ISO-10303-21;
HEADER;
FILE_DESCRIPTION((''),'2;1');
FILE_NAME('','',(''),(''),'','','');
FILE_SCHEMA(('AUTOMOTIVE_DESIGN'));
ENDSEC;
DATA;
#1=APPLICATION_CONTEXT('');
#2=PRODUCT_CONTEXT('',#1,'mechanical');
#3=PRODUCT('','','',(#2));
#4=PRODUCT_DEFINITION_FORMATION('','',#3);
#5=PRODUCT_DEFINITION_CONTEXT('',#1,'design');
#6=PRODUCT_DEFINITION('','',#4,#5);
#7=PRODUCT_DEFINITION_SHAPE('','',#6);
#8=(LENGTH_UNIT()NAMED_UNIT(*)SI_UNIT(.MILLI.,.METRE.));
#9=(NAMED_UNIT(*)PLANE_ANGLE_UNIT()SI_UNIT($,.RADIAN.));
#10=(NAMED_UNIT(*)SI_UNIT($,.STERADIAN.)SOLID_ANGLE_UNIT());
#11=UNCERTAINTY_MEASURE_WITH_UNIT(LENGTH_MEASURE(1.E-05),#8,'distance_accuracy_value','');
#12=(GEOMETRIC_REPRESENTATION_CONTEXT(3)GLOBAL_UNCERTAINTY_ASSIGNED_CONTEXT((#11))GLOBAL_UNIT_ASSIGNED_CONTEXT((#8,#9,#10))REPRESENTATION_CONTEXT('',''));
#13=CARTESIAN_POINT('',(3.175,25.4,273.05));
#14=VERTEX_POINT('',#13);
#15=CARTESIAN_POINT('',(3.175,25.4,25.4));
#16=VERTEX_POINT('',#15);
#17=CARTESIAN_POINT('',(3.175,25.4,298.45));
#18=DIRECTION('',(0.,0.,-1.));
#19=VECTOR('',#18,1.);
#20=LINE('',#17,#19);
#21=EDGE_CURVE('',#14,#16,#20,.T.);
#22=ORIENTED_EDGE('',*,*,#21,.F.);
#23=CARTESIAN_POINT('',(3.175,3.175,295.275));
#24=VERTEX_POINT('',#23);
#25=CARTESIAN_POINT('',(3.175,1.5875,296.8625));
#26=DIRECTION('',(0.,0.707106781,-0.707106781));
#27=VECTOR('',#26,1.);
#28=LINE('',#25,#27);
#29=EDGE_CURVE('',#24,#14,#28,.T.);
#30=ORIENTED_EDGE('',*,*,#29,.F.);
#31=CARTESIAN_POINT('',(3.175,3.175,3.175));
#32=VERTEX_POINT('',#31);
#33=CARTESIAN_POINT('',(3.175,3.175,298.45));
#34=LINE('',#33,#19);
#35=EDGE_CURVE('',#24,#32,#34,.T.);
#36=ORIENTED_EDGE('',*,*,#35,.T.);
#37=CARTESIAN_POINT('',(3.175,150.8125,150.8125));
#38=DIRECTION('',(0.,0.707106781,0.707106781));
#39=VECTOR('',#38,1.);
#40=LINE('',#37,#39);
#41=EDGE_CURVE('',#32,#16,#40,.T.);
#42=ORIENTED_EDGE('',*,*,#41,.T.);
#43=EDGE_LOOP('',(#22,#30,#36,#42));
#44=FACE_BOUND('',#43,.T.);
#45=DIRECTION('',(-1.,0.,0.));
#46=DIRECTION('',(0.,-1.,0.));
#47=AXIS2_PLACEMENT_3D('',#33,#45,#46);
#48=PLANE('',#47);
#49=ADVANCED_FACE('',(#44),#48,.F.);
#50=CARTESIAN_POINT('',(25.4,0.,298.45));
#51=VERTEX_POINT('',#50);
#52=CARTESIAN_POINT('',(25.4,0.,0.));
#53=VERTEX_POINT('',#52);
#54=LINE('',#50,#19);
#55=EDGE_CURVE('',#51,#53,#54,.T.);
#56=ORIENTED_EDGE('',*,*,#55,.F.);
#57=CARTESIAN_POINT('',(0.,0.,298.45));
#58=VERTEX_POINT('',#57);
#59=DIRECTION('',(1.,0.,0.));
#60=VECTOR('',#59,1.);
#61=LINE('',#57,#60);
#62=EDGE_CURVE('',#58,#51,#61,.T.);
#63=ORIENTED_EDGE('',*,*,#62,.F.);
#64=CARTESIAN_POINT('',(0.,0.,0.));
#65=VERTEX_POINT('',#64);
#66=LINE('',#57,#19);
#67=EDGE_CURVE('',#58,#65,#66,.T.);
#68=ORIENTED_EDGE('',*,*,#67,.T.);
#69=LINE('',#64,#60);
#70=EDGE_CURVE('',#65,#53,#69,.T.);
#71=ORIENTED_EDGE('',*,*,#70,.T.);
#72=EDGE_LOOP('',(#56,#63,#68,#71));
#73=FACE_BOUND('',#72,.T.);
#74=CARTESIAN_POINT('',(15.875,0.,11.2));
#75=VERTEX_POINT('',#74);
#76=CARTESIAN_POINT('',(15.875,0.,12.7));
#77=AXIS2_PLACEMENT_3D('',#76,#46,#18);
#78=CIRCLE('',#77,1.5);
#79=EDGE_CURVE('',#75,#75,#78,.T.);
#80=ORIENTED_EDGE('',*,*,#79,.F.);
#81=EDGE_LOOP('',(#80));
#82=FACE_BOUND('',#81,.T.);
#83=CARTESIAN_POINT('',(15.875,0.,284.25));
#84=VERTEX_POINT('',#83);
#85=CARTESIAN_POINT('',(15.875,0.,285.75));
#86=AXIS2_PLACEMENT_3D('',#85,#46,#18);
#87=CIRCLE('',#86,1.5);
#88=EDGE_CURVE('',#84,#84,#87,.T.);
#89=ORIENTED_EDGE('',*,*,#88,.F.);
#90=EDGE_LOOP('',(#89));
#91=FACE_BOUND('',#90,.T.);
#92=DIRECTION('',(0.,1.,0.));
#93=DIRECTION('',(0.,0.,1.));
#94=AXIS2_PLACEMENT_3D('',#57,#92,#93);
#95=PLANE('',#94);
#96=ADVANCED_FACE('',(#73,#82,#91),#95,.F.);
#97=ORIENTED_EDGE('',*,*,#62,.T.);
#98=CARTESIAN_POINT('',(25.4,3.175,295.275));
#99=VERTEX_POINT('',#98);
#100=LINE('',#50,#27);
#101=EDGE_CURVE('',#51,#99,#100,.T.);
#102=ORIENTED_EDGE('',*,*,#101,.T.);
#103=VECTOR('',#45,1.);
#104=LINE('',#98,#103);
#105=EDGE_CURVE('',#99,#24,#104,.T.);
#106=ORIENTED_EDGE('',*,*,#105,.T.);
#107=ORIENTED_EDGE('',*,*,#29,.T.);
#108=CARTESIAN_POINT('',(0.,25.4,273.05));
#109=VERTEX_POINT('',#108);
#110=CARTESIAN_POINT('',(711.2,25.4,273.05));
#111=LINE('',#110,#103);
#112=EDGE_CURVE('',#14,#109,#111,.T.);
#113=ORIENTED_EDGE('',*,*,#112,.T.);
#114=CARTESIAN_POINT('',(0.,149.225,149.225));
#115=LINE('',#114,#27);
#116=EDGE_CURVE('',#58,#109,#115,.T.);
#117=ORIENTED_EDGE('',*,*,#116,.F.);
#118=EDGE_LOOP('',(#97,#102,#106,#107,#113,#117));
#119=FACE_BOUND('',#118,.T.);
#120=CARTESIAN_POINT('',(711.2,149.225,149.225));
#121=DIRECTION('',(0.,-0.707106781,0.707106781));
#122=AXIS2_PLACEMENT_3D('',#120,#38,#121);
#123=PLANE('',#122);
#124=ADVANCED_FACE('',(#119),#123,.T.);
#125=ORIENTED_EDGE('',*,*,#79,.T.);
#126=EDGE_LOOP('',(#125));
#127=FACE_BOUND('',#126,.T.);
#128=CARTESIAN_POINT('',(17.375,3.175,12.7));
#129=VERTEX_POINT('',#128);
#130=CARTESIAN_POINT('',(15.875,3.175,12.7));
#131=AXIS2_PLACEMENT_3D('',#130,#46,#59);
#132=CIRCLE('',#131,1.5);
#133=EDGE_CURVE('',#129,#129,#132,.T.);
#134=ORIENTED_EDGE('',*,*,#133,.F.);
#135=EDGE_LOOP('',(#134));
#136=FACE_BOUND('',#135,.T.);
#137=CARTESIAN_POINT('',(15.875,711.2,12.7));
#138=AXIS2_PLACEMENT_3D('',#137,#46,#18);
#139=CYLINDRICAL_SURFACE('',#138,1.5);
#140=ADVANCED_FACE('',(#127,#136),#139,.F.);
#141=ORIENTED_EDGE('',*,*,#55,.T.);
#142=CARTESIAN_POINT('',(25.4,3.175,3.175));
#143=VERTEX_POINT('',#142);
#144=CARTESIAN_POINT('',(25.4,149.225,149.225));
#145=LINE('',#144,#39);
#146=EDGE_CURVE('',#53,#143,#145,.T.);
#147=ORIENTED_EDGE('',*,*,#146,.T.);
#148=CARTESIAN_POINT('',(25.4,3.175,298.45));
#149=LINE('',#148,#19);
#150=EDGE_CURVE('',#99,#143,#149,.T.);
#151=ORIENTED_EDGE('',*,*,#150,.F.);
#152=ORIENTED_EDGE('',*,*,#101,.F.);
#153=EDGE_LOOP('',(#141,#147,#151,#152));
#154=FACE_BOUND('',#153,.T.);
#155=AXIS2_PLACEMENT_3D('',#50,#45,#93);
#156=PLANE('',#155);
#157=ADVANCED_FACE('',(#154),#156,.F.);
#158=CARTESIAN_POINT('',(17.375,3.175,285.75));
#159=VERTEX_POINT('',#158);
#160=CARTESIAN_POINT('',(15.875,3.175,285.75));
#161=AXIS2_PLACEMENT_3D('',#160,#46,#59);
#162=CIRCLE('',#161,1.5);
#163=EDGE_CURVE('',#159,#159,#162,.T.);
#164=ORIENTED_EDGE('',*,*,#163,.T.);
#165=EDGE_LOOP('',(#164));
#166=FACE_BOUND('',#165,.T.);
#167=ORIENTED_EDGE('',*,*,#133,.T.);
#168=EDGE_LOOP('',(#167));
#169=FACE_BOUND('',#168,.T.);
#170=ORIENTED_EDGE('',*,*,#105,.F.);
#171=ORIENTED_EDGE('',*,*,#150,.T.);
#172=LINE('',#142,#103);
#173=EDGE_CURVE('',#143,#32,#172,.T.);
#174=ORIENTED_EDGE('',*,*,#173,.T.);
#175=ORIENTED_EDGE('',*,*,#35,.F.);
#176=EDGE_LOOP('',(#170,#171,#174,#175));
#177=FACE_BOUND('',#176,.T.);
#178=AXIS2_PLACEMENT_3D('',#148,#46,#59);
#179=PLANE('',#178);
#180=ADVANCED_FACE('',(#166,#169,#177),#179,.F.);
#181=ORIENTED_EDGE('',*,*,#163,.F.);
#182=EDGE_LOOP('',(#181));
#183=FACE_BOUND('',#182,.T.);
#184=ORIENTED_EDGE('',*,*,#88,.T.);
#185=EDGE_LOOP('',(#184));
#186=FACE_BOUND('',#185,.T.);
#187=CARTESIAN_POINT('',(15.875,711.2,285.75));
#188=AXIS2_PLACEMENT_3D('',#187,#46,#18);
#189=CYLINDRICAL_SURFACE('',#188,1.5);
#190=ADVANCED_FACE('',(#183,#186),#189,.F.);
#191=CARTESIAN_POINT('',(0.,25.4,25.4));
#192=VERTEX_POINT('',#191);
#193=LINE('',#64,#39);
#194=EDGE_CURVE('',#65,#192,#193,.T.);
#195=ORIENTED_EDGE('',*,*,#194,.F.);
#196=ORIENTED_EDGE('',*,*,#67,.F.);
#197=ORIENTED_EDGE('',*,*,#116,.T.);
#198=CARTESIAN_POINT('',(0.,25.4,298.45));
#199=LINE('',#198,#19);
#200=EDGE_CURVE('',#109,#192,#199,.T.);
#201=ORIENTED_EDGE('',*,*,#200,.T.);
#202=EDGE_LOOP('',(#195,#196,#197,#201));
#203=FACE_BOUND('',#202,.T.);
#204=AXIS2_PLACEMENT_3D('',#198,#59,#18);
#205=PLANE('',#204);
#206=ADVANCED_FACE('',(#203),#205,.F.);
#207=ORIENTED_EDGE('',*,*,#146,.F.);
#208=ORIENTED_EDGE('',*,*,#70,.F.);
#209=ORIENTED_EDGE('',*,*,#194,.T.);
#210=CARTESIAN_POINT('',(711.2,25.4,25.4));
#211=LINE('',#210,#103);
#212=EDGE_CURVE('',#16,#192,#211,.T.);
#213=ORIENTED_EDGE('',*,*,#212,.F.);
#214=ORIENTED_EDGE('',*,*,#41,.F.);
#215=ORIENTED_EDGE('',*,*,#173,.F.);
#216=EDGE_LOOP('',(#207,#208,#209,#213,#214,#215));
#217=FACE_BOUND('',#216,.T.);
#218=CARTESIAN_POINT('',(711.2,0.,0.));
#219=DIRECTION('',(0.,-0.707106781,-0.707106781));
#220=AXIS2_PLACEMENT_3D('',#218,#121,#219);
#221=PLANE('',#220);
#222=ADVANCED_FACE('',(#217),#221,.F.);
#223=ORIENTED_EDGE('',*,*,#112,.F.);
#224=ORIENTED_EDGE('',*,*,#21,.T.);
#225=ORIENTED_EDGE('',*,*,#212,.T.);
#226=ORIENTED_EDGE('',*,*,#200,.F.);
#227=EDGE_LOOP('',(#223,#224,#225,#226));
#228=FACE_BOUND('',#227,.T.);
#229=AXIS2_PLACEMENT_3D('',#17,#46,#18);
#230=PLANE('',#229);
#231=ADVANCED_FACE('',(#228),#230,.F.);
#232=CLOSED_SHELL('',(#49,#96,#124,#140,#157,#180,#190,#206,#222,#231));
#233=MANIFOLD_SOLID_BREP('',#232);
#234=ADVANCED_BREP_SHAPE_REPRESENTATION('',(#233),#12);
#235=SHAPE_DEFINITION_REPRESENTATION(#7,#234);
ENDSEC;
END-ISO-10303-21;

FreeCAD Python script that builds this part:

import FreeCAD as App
import Part
import Sketcher
from FreeCAD import Vector
Q = App.Units.Quantity

doc = App.newDocument("Part")
params = doc.addObject("Spreadsheet::Sheet", "Params")
for row, (alias, value) in enumerate([
    ("sketch1_width", "1 in"),
    ("sketch1_width2", "0.875 in"),
    ("pad1_length", "11.75 in"),
    ("sketch2_width", "1 in"),
    ("pocket1_length", "28 in"),
    ("pocket2_length", "28 in"),
], start=1):
    params.set(f"A{row}", alias)
    params.set(f"B{row}", "=" + value)
    params.setAlias(f"B{row}", alias)

body = doc.addObject("PartDesign::Body", "Body")

sketch1 = doc.addObject("Sketcher::SketchObject", "Sketch")
body.addObject(sketch1)
sketch1.AttachmentSupport = (doc.XY_Plane, [""])
sketch1.MapMode = "FlatFace"
sketch1.addGeometry(Part.LineSegment(Vector(0, 25.4, 0), Vector(0, 0, 0)), False)
sketch1.addGeometry(Part.LineSegment(Vector(0, 0, 0), Vector(25.4, 0, 0)), False)
sketch1.addGeometry(Part.LineSegment(Vector(25.4, 0, 0), Vector(25.4, 3.2, 0)), False)
sketch1.addGeometry(Part.LineSegment(Vector(25.4, 3.2, 0), Vector(3.2, 3.2, 0)), False)
sketch1.addGeometry(Part.LineSegment(Vector(3.2, 3.2, 0), Vector(3.2, 25.4, 0)), False)
sketch1.addGeometry(Part.LineSegment(Vector(3.2, 25.4, 0), Vector(0, 25.4, 0)), False)
sketch1.addConstraint(Sketcher.Constraint("Coincident", 0, 2, 1, 1))
sketch1.addConstraint(Sketcher.Constraint("Coincident", 1, 2, 2, 1))
sketch1.addConstraint(Sketcher.Constraint("Coincident", 2, 2, 3, 1))
sketch1.addConstraint(Sketcher.Constraint("Coincident", 3, 2, 4, 1))
sketch1.addConstraint(Sketcher.Constraint("Coincident", 4, 2, 5, 1))
sketch1.addConstraint(Sketcher.Constraint("Coincident", 5, 2, 0, 1))
sketch1.addConstraint(Sketcher.Constraint("Vertical", 0))
sketch1.addConstraint(Sketcher.Constraint("Horizontal", 1))
sketch1.addConstraint(Sketcher.Constraint("Vertical", 2))
sketch1.addConstraint(Sketcher.Constraint("Horizontal", 3))
sketch1.addConstraint(Sketcher.Constraint("Vertical", 4))
sketch1.addConstraint(Sketcher.Constraint("Horizontal", 5))
sketch1.addConstraint(Sketcher.Constraint("Coincident", 0, 2, -1, 1))
sketch1.addConstraint(Sketcher.Constraint("Equal", 1, 0))
sketch1.addConstraint(Sketcher.Constraint("Equal", 5, 2))
sketch1.addConstraint(Sketcher.Constraint("DistanceX", 1, 1, 1, 2, Q("1 in")))
sketch1.addConstraint(Sketcher.Constraint("DistanceX", 3, 2, 3, 1, Q("0.875 in")))
sketch1.setExpression("Constraints[15]", "Params.sketch1_width")
sketch1.setExpression("Constraints[16]", "Params.sketch1_width2")
pad1 = doc.addObject("PartDesign::Pad", "Pad")
body.addObject(pad1)
pad1.Profile = sketch1
pad1.setExpression("Length", "Params.pad1_length")

sketch2 = doc.addObject("Sketcher::SketchObject", "Sketch001")
body.addObject(sketch2)
sketch2.AttachmentSupport = (doc.YZ_Plane, [""])
sketch2.MapMode = "FlatFace"
sketch2.addGeometry(Part.LineSegment(Vector(0, 0, 0), Vector(25, 25, 0)), False)
sketch2.addGeometry(Part.LineSegment(Vector(25, 25, 0), Vector(25, 0, 0)), False)
sketch2.addGeometry(Part.LineSegment(Vector(25, 0, 0), Vector(0, 0, 0)), False)
sketch2.addGeometry(Part.LineSegment(Vector(25, 298, 0), Vector(25, 273, 0)), False)
sketch2.addGeometry(Part.LineSegment(Vector(25, 273, 0), Vector(0, 298, 0)), False)
sketch2.addGeometry(Part.LineSegment(Vector(0, 298, 0), Vector(25, 298, 0)), False)
sketch2.addConstraint(Sketcher.Constraint("Coincident", 0, 2, 1, 1))
sketch2.addConstraint(Sketcher.Constraint("Coincident", 1, 2, 2, 1))
sketch2.addConstraint(Sketcher.Constraint("Coincident", 2, 2, 0, 1))
sketch2.addConstraint(Sketcher.Constraint("Coincident", 3, 2, 4, 1))
sketch2.addConstraint(Sketcher.Constraint("Coincident", 4, 2, 5, 1))
sketch2.addConstraint(Sketcher.Constraint("Coincident", 5, 2, 3, 1))
sketch2.addConstraint(Sketcher.Constraint("Vertical", 1))
sketch2.addConstraint(Sketcher.Constraint("Horizontal", 2))
sketch2.addConstraint(Sketcher.Constraint("Vertical", 3))
sketch2.addConstraint(Sketcher.Constraint("Horizontal", 5))
sketch2.addConstraint(Sketcher.Constraint("Coincident", 2, 2, -1, 1))
sketch2.addConstraint(Sketcher.Constraint("PointOnObject", 4, 2, -2))
sketch2.addConstraint(Sketcher.Constraint("Perpendicular", 0, 4))
sketch2.addConstraint(Sketcher.Constraint("Vertical", 1, 2, 3, 2))
sketch2.addConstraint(Sketcher.Constraint("Equal", 5, 1))
sketch2.addConstraint(Sketcher.Constraint("DistanceX", 2, 2, 2, 1, Q("1 in")))
sketch2.addConstraint(Sketcher.Constraint("DistanceY", -1, 1, 3, 2, Q("10.75 in")))
sketch2.setExpression("Constraints[15]", "Params.sketch2_width")
pocket1 = doc.addObject("PartDesign::Pocket", "Pocket")
body.addObject(pocket1)
pocket1.Profile = sketch2
pocket1.setExpression("Length", "Params.pocket1_length")
pocket1.Reversed = True

sketch3 = doc.addObject("Sketcher::SketchObject", "Sketch002")
body.addObject(sketch3)
sketch3.AttachmentSupport = (doc.XZ_Plane, [""])
sketch3.MapMode = "FlatFace"
sketch3.addGeometry(Part.Circle(Vector(15.9, 285.8, 0), Vector(0, 0, 1), 1.5), False)
sketch3.addGeometry(Part.Circle(Vector(15.9, 12.7, 0), Vector(0, 0, 1), 1.5), False)
sketch3.addConstraint(Sketcher.Constraint("Equal", 0, 1))
sketch3.addConstraint(Sketcher.Constraint("Vertical", 0, 3, 1, 3))
sketch3.addConstraint(Sketcher.Constraint("DistanceY", -1, 1, 1, 3, Q("0.5 in")))
sketch3.addConstraint(Sketcher.Constraint("Diameter", 0, 3.0))
sketch3.addConstraint(Sketcher.Constraint("DistanceY", -1, 1, 0, 3, Q("11.25 in")))
sketch3.addConstraint(Sketcher.Constraint("DistanceX", -1, 1, 0, 3, Q("0.625 in")))
pocket2 = doc.addObject("PartDesign::Pocket", "Pocket001")
body.addObject(pocket2)
pocket2.Profile = sketch3
pocket2.setExpression("Length", "Params.pocket2_length")

doc.recompute()
